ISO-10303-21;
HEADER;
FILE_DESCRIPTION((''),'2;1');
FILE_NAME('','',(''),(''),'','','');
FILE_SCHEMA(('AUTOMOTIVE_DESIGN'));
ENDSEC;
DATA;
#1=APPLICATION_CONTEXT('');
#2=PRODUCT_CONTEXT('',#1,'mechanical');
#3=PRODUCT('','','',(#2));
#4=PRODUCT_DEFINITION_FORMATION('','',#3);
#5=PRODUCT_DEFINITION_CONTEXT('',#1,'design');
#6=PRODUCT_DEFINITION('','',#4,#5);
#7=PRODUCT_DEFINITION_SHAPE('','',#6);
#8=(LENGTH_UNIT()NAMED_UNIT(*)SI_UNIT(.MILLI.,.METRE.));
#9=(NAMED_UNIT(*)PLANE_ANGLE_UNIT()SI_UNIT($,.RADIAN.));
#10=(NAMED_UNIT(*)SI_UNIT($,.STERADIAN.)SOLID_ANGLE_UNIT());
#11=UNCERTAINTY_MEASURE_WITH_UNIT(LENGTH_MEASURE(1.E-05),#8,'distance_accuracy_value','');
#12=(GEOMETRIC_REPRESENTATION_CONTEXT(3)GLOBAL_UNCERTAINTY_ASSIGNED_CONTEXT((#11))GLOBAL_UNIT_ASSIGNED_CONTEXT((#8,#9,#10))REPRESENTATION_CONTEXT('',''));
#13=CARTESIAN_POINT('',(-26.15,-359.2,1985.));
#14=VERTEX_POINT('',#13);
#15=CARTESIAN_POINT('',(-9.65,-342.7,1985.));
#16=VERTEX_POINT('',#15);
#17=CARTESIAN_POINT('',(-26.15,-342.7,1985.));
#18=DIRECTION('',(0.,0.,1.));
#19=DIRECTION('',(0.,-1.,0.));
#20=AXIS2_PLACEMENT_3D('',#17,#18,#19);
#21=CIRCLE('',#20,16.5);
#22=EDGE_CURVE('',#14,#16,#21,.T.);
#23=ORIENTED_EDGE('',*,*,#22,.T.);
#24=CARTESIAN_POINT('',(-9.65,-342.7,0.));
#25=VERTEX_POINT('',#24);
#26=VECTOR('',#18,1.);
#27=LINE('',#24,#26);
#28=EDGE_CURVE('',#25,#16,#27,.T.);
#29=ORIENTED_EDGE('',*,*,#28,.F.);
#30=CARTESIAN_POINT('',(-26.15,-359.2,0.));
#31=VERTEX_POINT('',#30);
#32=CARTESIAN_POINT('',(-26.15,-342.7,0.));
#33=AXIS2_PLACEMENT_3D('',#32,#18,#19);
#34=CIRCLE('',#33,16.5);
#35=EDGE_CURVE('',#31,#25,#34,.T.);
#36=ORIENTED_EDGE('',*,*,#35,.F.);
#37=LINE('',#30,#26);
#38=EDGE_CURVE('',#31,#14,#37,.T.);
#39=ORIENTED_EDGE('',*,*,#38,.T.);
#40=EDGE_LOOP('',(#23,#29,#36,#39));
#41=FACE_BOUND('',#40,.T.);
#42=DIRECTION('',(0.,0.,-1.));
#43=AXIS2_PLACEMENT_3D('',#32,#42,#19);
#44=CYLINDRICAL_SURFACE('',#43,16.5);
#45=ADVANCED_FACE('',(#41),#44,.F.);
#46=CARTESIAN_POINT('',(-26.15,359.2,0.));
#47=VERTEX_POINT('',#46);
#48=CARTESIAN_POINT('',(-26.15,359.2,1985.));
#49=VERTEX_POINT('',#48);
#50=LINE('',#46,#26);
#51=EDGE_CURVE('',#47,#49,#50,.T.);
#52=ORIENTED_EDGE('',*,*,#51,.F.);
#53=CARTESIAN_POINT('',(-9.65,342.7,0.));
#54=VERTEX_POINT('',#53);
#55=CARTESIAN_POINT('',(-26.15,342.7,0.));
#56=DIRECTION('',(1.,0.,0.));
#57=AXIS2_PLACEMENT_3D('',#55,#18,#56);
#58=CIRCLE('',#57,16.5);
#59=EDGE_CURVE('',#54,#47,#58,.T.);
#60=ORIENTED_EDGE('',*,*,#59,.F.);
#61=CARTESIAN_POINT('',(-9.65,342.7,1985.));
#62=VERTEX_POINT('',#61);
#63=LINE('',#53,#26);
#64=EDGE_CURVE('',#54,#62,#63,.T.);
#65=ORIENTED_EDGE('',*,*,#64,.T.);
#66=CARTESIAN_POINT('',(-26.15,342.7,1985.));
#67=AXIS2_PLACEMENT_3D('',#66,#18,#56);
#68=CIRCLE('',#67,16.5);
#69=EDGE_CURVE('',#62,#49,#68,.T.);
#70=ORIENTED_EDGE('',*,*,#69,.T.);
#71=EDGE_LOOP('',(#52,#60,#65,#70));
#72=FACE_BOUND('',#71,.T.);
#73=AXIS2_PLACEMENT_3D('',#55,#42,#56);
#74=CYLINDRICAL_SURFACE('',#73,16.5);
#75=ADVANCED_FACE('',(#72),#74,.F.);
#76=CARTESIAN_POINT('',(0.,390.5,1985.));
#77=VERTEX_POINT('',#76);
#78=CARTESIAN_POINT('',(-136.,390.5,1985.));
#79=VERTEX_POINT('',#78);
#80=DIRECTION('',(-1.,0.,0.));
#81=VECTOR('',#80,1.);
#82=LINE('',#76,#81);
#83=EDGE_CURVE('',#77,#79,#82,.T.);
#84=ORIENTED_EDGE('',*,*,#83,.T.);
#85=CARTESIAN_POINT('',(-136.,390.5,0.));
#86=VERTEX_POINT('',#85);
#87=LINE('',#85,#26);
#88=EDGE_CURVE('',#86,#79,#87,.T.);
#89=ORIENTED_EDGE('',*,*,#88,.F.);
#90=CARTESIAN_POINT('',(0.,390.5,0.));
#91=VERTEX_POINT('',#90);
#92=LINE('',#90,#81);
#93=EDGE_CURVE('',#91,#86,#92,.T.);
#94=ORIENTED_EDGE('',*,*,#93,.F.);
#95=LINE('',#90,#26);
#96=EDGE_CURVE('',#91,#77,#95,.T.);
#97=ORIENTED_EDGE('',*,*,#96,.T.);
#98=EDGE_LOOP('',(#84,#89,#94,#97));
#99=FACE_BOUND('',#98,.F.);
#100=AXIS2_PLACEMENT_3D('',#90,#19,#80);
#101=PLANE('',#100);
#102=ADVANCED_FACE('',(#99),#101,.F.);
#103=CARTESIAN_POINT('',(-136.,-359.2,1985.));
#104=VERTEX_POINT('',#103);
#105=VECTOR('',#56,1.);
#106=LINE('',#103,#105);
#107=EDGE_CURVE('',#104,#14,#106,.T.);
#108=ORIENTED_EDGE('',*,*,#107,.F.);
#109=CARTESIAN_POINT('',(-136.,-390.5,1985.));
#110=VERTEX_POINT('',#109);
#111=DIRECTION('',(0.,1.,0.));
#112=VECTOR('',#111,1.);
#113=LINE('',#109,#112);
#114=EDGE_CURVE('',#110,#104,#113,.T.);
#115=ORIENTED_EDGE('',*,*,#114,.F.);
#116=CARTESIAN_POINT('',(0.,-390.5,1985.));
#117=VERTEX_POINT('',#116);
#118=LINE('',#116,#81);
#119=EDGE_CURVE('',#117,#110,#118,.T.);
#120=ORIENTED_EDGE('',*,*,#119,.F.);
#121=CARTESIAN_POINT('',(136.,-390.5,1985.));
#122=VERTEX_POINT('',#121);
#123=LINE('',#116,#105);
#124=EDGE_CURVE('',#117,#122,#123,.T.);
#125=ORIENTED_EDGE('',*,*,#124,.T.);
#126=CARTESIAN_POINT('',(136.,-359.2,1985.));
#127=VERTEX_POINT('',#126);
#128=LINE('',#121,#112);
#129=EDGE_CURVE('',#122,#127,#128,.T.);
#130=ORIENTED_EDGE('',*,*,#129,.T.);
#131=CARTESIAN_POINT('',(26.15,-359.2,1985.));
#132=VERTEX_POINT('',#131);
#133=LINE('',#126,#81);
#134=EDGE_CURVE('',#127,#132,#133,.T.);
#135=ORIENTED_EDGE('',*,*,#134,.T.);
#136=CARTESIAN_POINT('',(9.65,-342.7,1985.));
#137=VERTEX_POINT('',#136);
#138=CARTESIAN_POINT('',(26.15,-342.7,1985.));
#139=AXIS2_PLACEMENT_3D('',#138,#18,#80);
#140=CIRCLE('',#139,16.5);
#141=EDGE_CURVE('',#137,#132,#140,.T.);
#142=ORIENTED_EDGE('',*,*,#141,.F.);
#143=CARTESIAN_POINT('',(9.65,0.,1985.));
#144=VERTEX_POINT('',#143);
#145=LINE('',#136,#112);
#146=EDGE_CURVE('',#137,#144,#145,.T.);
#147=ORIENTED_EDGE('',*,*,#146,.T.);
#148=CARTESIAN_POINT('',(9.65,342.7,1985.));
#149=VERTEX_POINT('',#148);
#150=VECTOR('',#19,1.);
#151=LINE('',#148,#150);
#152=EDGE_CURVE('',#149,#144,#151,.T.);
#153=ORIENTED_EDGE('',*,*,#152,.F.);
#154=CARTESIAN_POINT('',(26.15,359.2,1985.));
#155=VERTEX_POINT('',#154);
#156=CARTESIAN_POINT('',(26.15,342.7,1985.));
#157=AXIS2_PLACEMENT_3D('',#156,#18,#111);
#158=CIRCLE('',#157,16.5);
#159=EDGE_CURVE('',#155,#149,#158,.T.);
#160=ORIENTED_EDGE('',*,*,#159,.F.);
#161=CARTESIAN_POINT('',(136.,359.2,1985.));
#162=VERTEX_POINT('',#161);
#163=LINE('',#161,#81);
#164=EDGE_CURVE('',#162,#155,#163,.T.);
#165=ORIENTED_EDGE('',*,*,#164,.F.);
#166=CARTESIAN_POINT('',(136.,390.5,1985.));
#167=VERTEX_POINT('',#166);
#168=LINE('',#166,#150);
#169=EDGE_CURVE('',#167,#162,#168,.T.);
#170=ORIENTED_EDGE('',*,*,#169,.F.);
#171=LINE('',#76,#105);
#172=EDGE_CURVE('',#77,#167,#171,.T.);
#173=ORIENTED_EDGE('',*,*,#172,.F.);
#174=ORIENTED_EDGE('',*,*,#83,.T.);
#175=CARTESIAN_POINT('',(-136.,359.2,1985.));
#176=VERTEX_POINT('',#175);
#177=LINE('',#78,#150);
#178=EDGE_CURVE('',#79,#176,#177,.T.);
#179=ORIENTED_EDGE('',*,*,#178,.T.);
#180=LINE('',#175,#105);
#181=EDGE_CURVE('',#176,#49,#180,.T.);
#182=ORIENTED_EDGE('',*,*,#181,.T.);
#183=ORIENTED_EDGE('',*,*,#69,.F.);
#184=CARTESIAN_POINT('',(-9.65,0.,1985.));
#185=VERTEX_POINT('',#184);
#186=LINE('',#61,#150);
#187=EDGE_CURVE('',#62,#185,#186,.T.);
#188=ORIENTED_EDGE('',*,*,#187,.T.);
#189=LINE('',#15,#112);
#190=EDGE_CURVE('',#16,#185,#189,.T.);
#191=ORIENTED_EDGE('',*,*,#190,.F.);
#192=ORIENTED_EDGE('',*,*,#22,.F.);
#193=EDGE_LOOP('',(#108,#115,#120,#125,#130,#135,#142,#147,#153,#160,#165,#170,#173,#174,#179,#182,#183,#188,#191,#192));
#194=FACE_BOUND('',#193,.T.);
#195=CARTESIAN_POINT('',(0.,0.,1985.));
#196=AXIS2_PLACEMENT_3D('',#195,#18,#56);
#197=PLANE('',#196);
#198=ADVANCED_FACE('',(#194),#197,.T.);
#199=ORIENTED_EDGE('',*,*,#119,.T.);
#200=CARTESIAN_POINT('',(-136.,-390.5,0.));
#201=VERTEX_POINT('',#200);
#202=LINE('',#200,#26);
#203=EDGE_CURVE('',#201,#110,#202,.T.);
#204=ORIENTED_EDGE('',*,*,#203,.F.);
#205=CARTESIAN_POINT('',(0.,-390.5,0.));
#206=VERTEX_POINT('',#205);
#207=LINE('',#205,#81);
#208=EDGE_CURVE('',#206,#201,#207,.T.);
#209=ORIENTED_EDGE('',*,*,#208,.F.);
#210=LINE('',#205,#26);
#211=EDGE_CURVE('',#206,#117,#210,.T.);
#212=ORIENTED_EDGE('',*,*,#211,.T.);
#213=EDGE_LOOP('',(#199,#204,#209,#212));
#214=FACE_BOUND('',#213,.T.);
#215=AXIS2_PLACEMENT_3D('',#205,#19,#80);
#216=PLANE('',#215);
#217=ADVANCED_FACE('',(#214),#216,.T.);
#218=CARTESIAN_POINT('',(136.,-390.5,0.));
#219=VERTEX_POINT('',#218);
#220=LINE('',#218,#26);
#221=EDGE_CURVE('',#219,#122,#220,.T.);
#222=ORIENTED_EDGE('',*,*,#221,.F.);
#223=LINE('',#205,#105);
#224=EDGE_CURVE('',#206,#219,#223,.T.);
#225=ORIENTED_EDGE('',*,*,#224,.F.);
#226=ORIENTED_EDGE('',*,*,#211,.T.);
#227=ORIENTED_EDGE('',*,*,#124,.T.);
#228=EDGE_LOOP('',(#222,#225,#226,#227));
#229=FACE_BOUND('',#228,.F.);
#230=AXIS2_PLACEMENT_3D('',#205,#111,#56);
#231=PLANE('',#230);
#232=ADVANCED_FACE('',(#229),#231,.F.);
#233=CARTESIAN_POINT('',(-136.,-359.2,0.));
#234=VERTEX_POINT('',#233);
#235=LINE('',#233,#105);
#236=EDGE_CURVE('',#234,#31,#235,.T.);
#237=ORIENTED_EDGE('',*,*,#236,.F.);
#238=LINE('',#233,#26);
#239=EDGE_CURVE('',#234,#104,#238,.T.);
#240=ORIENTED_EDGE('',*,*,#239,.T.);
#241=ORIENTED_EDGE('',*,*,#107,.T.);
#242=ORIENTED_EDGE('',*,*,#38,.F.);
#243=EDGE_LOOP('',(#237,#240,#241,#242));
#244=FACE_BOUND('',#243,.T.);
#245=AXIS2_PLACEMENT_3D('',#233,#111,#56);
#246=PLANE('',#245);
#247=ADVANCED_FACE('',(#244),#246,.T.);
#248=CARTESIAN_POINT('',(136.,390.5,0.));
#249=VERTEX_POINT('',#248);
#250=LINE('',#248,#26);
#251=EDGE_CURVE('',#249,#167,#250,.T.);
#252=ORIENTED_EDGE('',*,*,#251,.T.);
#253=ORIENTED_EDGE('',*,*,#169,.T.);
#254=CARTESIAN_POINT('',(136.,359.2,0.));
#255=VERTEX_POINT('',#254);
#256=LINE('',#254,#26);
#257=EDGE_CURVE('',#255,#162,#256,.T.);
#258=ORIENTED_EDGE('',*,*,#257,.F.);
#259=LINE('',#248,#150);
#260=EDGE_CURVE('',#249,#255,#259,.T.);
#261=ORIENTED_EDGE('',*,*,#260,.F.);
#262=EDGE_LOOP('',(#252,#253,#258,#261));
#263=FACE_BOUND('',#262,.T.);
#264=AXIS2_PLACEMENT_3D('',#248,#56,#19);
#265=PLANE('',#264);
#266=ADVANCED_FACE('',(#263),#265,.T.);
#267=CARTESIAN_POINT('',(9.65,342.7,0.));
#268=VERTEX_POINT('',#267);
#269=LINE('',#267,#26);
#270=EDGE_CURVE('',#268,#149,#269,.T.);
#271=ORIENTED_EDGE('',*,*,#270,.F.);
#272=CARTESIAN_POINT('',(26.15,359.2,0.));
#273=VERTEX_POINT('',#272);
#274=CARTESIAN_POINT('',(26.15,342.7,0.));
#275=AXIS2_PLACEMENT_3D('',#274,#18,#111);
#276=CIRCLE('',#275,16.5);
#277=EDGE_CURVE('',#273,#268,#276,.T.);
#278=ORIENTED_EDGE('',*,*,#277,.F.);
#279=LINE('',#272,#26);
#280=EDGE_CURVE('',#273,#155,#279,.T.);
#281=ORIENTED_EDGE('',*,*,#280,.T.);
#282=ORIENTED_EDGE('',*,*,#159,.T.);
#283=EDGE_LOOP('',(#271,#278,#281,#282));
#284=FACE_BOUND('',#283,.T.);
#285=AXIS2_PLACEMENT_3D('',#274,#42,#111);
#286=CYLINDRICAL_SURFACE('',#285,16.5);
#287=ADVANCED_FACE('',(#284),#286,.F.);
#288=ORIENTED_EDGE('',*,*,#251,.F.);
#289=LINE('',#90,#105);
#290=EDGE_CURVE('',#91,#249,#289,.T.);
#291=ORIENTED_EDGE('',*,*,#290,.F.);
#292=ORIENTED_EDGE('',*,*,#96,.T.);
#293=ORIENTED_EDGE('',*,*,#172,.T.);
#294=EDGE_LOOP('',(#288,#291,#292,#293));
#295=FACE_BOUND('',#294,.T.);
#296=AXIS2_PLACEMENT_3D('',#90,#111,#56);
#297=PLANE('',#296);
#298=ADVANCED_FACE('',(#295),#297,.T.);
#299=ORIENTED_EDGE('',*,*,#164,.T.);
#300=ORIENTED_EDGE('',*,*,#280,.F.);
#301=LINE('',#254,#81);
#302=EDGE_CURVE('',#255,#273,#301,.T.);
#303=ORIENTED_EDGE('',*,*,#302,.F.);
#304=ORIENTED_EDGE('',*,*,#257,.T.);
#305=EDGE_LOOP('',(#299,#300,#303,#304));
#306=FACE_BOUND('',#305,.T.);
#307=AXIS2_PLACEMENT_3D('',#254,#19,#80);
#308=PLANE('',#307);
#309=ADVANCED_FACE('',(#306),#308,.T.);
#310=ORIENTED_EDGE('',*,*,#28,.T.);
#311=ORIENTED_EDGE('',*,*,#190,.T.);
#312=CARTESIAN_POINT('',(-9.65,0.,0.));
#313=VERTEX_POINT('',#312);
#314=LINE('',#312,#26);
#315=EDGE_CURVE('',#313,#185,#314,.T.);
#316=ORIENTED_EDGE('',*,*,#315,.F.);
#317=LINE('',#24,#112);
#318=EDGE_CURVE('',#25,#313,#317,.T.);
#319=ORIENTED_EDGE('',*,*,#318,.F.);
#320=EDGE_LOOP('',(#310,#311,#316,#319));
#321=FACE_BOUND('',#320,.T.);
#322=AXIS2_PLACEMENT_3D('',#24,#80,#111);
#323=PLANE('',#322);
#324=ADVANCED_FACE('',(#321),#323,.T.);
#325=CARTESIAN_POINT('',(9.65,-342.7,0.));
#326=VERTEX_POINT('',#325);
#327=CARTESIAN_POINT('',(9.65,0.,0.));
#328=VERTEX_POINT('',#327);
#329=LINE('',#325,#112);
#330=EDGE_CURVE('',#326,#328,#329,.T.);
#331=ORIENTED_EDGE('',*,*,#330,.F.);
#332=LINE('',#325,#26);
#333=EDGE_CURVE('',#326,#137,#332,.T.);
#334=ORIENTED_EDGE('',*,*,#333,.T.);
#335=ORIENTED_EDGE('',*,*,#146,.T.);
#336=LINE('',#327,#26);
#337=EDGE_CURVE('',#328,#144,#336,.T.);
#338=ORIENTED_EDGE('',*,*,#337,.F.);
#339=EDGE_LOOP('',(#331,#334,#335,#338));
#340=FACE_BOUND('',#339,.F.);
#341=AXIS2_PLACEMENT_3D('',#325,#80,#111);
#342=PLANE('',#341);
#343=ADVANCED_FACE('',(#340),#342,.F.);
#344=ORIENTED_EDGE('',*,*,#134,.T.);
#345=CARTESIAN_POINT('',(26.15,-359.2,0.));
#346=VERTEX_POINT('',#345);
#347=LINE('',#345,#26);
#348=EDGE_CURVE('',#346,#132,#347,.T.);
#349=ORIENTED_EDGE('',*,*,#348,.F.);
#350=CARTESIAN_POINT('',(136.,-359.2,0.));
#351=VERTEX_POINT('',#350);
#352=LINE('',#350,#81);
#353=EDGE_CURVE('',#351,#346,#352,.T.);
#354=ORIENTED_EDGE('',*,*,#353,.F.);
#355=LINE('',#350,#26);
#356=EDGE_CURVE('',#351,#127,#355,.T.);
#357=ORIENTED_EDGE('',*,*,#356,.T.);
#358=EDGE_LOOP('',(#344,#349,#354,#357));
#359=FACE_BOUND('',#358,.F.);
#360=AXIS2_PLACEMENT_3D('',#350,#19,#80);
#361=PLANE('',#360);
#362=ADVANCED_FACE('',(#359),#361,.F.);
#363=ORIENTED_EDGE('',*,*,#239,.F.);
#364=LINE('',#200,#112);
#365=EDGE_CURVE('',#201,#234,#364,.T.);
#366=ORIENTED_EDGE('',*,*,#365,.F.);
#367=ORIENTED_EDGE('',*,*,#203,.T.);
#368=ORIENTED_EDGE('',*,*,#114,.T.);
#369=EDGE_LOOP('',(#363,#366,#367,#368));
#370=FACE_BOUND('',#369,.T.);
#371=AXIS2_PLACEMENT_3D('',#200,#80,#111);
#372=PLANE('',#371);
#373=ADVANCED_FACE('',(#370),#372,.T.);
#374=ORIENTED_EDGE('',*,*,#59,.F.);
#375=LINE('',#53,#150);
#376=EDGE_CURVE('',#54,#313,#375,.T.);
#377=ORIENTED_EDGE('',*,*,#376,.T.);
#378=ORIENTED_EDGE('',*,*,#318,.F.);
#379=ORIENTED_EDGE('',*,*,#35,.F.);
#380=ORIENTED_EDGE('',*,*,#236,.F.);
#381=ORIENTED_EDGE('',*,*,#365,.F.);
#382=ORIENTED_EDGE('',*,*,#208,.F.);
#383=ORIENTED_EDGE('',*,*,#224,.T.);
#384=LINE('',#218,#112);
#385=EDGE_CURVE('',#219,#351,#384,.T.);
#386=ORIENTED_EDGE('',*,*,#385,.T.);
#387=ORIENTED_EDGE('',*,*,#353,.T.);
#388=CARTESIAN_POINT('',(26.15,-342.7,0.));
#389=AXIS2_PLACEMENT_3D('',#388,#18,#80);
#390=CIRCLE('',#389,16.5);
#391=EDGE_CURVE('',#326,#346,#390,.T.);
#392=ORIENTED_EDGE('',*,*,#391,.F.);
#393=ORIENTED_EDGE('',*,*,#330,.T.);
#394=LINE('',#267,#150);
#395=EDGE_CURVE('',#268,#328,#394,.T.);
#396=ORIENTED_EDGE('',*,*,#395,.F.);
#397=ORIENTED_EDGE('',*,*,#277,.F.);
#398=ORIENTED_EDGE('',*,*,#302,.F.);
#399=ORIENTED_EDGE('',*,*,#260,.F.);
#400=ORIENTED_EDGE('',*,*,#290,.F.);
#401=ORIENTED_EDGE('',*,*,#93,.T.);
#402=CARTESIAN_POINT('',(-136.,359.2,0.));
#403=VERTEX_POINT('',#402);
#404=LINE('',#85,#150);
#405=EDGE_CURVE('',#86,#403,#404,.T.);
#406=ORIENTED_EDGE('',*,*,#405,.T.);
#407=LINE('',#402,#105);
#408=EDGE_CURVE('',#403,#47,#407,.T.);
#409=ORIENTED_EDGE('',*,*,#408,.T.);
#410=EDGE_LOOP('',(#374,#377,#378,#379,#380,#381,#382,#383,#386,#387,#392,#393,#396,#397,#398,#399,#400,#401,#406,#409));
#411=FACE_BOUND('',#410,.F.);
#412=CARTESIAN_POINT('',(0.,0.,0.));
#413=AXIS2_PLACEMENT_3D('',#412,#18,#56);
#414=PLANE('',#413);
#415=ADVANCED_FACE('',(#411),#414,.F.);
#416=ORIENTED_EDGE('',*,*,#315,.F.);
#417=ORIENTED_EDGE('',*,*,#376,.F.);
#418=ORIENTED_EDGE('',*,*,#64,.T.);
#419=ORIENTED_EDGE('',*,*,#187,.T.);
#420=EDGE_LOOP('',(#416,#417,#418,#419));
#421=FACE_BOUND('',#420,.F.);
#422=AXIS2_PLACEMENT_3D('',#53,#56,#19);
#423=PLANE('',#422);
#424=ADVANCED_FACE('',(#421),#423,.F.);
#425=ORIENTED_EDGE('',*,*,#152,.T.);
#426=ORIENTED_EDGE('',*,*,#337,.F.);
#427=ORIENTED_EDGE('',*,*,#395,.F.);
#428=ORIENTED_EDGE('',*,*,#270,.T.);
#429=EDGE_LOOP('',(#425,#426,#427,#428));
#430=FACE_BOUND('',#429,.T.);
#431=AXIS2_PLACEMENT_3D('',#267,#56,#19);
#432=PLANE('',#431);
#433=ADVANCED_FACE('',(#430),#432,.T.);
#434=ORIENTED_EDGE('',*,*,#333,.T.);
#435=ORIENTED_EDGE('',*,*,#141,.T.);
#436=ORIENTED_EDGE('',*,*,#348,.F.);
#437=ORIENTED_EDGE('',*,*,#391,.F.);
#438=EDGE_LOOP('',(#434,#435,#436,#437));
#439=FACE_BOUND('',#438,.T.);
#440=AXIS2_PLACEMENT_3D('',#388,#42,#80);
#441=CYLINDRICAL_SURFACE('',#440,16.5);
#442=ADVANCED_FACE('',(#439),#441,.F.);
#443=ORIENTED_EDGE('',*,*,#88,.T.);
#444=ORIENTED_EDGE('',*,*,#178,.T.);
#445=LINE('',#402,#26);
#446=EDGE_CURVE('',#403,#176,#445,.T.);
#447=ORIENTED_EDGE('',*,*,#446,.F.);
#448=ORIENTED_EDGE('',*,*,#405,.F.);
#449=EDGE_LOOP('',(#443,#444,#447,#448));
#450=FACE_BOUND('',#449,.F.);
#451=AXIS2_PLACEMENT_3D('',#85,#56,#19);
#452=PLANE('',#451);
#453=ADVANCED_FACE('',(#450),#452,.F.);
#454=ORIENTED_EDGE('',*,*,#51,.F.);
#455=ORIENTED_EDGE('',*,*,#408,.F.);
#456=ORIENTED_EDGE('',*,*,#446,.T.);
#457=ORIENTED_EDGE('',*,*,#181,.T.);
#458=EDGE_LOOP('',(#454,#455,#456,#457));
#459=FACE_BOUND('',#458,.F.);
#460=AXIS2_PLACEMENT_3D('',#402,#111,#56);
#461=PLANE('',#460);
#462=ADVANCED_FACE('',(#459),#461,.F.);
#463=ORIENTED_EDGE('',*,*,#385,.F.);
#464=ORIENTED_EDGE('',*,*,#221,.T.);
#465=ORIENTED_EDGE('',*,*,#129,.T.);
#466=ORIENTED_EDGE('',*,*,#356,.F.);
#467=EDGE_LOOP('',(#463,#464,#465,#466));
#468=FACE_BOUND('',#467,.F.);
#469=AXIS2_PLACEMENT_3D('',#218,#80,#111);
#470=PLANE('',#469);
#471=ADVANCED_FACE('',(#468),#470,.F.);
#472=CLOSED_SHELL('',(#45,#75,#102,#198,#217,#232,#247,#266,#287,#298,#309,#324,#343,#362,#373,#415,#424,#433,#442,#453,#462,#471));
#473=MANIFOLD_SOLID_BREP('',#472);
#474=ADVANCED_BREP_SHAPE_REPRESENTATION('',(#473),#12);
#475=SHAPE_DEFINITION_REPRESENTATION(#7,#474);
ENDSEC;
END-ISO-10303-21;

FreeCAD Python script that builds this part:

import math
import FreeCAD as App
import Part
import Sketcher

V = App.Vector

doc = App.newDocument("Part")
body = doc.addObject("PartDesign::Body", "Body")

# Sketch on XY plane
sketch1 = body.newObject("Sketcher::SketchObject", "Sketch")
sketch1.AttachmentSupport = (doc.getObject("XY_Plane"), [""])
sketch1.MapMode = "FlatFace"
sketch1.addGeometry([
    Part.LineSegment(V(-136, -359, 0), V(-136, -390, 0)),  # 0
    Part.LineSegment(V(-136, -390, 0), V(136, -390, 0)),  # 1
    Part.LineSegment(V(136, -390, 0), V(136, -359, 0)),  # 2
    Part.LineSegment(V(136, -359, 0), V(26, -359, 0)),  # 3
    Part.ArcOfCircle(Part.Circle(V(26, -343, 0), V(0, 0, 1), 16), math.radians(180), math.radians(270)),  # 4
    Part.LineSegment(V(10, -343, 0), V(10, 343, 0)),  # 5
    Part.ArcOfCircle(Part.Circle(V(26, 343, 0), V(0, 0, 1), 16), math.radians(90), math.radians(180)),  # 6
    Part.LineSegment(V(26, 359, 0), V(136, 359, 0)),  # 7
    Part.LineSegment(V(136, 359, 0), V(136, 390, 0)),  # 8
    Part.LineSegment(V(136, 390, 0), V(-136, 390, 0)),  # 9
    Part.LineSegment(V(-136, 390, 0), V(-136, 359, 0)),  # 10
    Part.LineSegment(V(-136, 359, 0), V(-26, 359, 0)),  # 11
    Part.ArcOfCircle(Part.Circle(V(-26, 343, 0), V(0, 0, 1), 16), math.radians(0), math.radians(90)),  # 12
    Part.LineSegment(V(-10, 343, 0), V(-10, -343, 0)),  # 13
    Part.ArcOfCircle(Part.Circle(V(-26, -343, 0), V(0, 0, 1), 16), math.radians(-90), math.radians(0)),  # 14
    Part.LineSegment(V(-26, -359, 0), V(-136, -359, 0)),  # 15
], False)
sketch1.addConstraint([
    Sketcher.Constraint("Coincident", 0, 2, 1, 1),
    Sketcher.Constraint("Coincident", 1, 2, 2, 1),
    Sketcher.Constraint("Coincident", 2, 2, 3, 1),
    Sketcher.Constraint("Tangent", 3, 2, 4, 2),
    Sketcher.Constraint("Tangent", 4, 1, 5, 1),
    Sketcher.Constraint("Tangent", 5, 2, 6, 2),
    Sketcher.Constraint("Tangent", 6, 1, 7, 1),
    Sketcher.Constraint("Coincident", 7, 2, 8, 1),
    Sketcher.Constraint("Coincident", 8, 2, 9, 1),
    Sketcher.Constraint("Coincident", 9, 2, 10, 1),
    Sketcher.Constraint("Coincident", 10, 2, 11, 1),
    Sketcher.Constraint("Tangent", 11, 2, 12, 2),
    Sketcher.Constraint("Tangent", 12, 1, 13, 1),
    Sketcher.Constraint("Tangent", 13, 2, 14, 2),
    Sketcher.Constraint("Tangent", 14, 1, 15, 1),
    Sketcher.Constraint("Coincident", 15, 2, 0, 1),
    Sketcher.Constraint("Vertical", 0),
    Sketcher.Constraint("Horizontal", 1),
    Sketcher.Constraint("Vertical", 2),
    Sketcher.Constraint("Horizontal", 3),
    Sketcher.Constraint("Vertical", 5),
    Sketcher.Constraint("Horizontal", 7),
    Sketcher.Constraint("Vertical", 8),
    Sketcher.Constraint("Horizontal", 9),
    Sketcher.Constraint("Vertical", 10),
    Sketcher.Constraint("Horizontal", 11),
    Sketcher.Constraint("Vertical", 13),
    Sketcher.Constraint("Horizontal", 15),
    Sketcher.Constraint("Equal", 4, 6),
    Sketcher.Constraint("Equal", 6, 12),
    Sketcher.Constraint("Equal", 12, 14),
    Sketcher.Constraint("Symmetric", 4, 3, 12, 3, -1, 1),
    Sketcher.Constraint("Symmetric", 0, 2, 8, 2, -1, 1),
    Sketcher.Constraint("Symmetric", 7, 2, 10, 2, -2),
    Sketcher.Constraint("Symmetric", 2, 2, 15, 2, -2),
    Sketcher.Constraint("Radius", 4, 16.5),
    Sketcher.Constraint("DistanceY", 0, 2, 0, 1, 31.3),
    Sketcher.Constraint("DistanceX", 0, 2, -1, 1, 136.0),
    Sketcher.Constraint("DistanceY", 0, 2, -1, 1, 390.5),
    Sketcher.Constraint("DistanceX", -1, 1, 4, 1, 9.65),
])
pad1 = body.newObject("PartDesign::Pad", "Pad")
pad1.Profile = sketch1
pad1.Length = 1985

doc.recompute()
